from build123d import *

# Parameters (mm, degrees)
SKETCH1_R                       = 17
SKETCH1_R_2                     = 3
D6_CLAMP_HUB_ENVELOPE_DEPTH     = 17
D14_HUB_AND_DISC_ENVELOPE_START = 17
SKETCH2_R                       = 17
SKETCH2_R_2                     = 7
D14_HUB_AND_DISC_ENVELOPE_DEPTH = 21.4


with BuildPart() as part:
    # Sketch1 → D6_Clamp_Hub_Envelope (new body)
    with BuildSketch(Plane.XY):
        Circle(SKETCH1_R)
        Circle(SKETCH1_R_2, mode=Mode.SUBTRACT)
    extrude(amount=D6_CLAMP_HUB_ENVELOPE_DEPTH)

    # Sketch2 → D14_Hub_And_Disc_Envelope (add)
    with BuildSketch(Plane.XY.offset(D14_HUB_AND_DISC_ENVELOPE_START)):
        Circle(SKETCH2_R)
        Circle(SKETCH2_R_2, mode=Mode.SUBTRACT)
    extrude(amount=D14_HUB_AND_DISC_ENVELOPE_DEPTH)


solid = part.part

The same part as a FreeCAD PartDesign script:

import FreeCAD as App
import Part
import Sketcher

doc = App.newDocument("Part")
body = doc.addObject("PartDesign::Body", "Body")

# Sketch on XY plane
sketch1 = doc.addObject("Sketcher::SketchObject", "Sketch")
body.addObject(sketch1)
sketch1.AttachmentSupport = (doc.XY_Plane, [""])
sketch1.MapMode = "FlatFace"
sketch1.addGeometry(Part.Circle(App.Vector(0, 0, 0), App.Vector(0, 0, 1), 17), False)
sketch1.addGeometry(Part.Circle(App.Vector(0, 0, 0), App.Vector(0, 0, 1), 3), False)
sketch1.addConstraint(Sketcher.Constraint("Coincident", 0, 3, -1, 1))
sketch1.addConstraint(Sketcher.Constraint("Coincident", 1, 3, -1, 1))
sketch1.addConstraint(Sketcher.Constraint("Diameter", 0, 34.0))
sketch1.addConstraint(Sketcher.Constraint("Diameter", 1, 6.0))
pad1 = doc.addObject("PartDesign::Pad", "Pad")
body.addObject(pad1)
pad1.Profile = sketch1
pad1.Length = 17

# Sketch on XY plane
sketch2 = doc.addObject("Sketcher::SketchObject", "Sketch001")
body.addObject(sketch2)
sketch2.AttachmentSupport = (doc.XY_Plane, [""])
sketch2.MapMode = "FlatFace"
sketch2.AttachmentOffset = App.Placement(App.Vector(0, 0, 17), App.Rotation())
sketch2.addGeometry(Part.Circle(App.Vector(0, 0, 0), App.Vector(0, 0, 1), 17), False)
sketch2.addGeometry(Part.Circle(App.Vector(0, 0, 0), App.Vector(0, 0, 1), 7), False)
sketch2.addConstraint(Sketcher.Constraint("Coincident", 0, 3, -1, 1))
sketch2.addConstraint(Sketcher.Constraint("Coincident", 1, 3, -1, 1))
sketch2.addConstraint(Sketcher.Constraint("Diameter", 0, 34.0))
sketch2.addConstraint(Sketcher.Constraint("Diameter", 1, 14.0))
pad2 = doc.addObject("PartDesign::Pad", "Pad001")
body.addObject(pad2)
pad2.Profile = sketch2
pad2.Length = 21.4

doc.recompute()
